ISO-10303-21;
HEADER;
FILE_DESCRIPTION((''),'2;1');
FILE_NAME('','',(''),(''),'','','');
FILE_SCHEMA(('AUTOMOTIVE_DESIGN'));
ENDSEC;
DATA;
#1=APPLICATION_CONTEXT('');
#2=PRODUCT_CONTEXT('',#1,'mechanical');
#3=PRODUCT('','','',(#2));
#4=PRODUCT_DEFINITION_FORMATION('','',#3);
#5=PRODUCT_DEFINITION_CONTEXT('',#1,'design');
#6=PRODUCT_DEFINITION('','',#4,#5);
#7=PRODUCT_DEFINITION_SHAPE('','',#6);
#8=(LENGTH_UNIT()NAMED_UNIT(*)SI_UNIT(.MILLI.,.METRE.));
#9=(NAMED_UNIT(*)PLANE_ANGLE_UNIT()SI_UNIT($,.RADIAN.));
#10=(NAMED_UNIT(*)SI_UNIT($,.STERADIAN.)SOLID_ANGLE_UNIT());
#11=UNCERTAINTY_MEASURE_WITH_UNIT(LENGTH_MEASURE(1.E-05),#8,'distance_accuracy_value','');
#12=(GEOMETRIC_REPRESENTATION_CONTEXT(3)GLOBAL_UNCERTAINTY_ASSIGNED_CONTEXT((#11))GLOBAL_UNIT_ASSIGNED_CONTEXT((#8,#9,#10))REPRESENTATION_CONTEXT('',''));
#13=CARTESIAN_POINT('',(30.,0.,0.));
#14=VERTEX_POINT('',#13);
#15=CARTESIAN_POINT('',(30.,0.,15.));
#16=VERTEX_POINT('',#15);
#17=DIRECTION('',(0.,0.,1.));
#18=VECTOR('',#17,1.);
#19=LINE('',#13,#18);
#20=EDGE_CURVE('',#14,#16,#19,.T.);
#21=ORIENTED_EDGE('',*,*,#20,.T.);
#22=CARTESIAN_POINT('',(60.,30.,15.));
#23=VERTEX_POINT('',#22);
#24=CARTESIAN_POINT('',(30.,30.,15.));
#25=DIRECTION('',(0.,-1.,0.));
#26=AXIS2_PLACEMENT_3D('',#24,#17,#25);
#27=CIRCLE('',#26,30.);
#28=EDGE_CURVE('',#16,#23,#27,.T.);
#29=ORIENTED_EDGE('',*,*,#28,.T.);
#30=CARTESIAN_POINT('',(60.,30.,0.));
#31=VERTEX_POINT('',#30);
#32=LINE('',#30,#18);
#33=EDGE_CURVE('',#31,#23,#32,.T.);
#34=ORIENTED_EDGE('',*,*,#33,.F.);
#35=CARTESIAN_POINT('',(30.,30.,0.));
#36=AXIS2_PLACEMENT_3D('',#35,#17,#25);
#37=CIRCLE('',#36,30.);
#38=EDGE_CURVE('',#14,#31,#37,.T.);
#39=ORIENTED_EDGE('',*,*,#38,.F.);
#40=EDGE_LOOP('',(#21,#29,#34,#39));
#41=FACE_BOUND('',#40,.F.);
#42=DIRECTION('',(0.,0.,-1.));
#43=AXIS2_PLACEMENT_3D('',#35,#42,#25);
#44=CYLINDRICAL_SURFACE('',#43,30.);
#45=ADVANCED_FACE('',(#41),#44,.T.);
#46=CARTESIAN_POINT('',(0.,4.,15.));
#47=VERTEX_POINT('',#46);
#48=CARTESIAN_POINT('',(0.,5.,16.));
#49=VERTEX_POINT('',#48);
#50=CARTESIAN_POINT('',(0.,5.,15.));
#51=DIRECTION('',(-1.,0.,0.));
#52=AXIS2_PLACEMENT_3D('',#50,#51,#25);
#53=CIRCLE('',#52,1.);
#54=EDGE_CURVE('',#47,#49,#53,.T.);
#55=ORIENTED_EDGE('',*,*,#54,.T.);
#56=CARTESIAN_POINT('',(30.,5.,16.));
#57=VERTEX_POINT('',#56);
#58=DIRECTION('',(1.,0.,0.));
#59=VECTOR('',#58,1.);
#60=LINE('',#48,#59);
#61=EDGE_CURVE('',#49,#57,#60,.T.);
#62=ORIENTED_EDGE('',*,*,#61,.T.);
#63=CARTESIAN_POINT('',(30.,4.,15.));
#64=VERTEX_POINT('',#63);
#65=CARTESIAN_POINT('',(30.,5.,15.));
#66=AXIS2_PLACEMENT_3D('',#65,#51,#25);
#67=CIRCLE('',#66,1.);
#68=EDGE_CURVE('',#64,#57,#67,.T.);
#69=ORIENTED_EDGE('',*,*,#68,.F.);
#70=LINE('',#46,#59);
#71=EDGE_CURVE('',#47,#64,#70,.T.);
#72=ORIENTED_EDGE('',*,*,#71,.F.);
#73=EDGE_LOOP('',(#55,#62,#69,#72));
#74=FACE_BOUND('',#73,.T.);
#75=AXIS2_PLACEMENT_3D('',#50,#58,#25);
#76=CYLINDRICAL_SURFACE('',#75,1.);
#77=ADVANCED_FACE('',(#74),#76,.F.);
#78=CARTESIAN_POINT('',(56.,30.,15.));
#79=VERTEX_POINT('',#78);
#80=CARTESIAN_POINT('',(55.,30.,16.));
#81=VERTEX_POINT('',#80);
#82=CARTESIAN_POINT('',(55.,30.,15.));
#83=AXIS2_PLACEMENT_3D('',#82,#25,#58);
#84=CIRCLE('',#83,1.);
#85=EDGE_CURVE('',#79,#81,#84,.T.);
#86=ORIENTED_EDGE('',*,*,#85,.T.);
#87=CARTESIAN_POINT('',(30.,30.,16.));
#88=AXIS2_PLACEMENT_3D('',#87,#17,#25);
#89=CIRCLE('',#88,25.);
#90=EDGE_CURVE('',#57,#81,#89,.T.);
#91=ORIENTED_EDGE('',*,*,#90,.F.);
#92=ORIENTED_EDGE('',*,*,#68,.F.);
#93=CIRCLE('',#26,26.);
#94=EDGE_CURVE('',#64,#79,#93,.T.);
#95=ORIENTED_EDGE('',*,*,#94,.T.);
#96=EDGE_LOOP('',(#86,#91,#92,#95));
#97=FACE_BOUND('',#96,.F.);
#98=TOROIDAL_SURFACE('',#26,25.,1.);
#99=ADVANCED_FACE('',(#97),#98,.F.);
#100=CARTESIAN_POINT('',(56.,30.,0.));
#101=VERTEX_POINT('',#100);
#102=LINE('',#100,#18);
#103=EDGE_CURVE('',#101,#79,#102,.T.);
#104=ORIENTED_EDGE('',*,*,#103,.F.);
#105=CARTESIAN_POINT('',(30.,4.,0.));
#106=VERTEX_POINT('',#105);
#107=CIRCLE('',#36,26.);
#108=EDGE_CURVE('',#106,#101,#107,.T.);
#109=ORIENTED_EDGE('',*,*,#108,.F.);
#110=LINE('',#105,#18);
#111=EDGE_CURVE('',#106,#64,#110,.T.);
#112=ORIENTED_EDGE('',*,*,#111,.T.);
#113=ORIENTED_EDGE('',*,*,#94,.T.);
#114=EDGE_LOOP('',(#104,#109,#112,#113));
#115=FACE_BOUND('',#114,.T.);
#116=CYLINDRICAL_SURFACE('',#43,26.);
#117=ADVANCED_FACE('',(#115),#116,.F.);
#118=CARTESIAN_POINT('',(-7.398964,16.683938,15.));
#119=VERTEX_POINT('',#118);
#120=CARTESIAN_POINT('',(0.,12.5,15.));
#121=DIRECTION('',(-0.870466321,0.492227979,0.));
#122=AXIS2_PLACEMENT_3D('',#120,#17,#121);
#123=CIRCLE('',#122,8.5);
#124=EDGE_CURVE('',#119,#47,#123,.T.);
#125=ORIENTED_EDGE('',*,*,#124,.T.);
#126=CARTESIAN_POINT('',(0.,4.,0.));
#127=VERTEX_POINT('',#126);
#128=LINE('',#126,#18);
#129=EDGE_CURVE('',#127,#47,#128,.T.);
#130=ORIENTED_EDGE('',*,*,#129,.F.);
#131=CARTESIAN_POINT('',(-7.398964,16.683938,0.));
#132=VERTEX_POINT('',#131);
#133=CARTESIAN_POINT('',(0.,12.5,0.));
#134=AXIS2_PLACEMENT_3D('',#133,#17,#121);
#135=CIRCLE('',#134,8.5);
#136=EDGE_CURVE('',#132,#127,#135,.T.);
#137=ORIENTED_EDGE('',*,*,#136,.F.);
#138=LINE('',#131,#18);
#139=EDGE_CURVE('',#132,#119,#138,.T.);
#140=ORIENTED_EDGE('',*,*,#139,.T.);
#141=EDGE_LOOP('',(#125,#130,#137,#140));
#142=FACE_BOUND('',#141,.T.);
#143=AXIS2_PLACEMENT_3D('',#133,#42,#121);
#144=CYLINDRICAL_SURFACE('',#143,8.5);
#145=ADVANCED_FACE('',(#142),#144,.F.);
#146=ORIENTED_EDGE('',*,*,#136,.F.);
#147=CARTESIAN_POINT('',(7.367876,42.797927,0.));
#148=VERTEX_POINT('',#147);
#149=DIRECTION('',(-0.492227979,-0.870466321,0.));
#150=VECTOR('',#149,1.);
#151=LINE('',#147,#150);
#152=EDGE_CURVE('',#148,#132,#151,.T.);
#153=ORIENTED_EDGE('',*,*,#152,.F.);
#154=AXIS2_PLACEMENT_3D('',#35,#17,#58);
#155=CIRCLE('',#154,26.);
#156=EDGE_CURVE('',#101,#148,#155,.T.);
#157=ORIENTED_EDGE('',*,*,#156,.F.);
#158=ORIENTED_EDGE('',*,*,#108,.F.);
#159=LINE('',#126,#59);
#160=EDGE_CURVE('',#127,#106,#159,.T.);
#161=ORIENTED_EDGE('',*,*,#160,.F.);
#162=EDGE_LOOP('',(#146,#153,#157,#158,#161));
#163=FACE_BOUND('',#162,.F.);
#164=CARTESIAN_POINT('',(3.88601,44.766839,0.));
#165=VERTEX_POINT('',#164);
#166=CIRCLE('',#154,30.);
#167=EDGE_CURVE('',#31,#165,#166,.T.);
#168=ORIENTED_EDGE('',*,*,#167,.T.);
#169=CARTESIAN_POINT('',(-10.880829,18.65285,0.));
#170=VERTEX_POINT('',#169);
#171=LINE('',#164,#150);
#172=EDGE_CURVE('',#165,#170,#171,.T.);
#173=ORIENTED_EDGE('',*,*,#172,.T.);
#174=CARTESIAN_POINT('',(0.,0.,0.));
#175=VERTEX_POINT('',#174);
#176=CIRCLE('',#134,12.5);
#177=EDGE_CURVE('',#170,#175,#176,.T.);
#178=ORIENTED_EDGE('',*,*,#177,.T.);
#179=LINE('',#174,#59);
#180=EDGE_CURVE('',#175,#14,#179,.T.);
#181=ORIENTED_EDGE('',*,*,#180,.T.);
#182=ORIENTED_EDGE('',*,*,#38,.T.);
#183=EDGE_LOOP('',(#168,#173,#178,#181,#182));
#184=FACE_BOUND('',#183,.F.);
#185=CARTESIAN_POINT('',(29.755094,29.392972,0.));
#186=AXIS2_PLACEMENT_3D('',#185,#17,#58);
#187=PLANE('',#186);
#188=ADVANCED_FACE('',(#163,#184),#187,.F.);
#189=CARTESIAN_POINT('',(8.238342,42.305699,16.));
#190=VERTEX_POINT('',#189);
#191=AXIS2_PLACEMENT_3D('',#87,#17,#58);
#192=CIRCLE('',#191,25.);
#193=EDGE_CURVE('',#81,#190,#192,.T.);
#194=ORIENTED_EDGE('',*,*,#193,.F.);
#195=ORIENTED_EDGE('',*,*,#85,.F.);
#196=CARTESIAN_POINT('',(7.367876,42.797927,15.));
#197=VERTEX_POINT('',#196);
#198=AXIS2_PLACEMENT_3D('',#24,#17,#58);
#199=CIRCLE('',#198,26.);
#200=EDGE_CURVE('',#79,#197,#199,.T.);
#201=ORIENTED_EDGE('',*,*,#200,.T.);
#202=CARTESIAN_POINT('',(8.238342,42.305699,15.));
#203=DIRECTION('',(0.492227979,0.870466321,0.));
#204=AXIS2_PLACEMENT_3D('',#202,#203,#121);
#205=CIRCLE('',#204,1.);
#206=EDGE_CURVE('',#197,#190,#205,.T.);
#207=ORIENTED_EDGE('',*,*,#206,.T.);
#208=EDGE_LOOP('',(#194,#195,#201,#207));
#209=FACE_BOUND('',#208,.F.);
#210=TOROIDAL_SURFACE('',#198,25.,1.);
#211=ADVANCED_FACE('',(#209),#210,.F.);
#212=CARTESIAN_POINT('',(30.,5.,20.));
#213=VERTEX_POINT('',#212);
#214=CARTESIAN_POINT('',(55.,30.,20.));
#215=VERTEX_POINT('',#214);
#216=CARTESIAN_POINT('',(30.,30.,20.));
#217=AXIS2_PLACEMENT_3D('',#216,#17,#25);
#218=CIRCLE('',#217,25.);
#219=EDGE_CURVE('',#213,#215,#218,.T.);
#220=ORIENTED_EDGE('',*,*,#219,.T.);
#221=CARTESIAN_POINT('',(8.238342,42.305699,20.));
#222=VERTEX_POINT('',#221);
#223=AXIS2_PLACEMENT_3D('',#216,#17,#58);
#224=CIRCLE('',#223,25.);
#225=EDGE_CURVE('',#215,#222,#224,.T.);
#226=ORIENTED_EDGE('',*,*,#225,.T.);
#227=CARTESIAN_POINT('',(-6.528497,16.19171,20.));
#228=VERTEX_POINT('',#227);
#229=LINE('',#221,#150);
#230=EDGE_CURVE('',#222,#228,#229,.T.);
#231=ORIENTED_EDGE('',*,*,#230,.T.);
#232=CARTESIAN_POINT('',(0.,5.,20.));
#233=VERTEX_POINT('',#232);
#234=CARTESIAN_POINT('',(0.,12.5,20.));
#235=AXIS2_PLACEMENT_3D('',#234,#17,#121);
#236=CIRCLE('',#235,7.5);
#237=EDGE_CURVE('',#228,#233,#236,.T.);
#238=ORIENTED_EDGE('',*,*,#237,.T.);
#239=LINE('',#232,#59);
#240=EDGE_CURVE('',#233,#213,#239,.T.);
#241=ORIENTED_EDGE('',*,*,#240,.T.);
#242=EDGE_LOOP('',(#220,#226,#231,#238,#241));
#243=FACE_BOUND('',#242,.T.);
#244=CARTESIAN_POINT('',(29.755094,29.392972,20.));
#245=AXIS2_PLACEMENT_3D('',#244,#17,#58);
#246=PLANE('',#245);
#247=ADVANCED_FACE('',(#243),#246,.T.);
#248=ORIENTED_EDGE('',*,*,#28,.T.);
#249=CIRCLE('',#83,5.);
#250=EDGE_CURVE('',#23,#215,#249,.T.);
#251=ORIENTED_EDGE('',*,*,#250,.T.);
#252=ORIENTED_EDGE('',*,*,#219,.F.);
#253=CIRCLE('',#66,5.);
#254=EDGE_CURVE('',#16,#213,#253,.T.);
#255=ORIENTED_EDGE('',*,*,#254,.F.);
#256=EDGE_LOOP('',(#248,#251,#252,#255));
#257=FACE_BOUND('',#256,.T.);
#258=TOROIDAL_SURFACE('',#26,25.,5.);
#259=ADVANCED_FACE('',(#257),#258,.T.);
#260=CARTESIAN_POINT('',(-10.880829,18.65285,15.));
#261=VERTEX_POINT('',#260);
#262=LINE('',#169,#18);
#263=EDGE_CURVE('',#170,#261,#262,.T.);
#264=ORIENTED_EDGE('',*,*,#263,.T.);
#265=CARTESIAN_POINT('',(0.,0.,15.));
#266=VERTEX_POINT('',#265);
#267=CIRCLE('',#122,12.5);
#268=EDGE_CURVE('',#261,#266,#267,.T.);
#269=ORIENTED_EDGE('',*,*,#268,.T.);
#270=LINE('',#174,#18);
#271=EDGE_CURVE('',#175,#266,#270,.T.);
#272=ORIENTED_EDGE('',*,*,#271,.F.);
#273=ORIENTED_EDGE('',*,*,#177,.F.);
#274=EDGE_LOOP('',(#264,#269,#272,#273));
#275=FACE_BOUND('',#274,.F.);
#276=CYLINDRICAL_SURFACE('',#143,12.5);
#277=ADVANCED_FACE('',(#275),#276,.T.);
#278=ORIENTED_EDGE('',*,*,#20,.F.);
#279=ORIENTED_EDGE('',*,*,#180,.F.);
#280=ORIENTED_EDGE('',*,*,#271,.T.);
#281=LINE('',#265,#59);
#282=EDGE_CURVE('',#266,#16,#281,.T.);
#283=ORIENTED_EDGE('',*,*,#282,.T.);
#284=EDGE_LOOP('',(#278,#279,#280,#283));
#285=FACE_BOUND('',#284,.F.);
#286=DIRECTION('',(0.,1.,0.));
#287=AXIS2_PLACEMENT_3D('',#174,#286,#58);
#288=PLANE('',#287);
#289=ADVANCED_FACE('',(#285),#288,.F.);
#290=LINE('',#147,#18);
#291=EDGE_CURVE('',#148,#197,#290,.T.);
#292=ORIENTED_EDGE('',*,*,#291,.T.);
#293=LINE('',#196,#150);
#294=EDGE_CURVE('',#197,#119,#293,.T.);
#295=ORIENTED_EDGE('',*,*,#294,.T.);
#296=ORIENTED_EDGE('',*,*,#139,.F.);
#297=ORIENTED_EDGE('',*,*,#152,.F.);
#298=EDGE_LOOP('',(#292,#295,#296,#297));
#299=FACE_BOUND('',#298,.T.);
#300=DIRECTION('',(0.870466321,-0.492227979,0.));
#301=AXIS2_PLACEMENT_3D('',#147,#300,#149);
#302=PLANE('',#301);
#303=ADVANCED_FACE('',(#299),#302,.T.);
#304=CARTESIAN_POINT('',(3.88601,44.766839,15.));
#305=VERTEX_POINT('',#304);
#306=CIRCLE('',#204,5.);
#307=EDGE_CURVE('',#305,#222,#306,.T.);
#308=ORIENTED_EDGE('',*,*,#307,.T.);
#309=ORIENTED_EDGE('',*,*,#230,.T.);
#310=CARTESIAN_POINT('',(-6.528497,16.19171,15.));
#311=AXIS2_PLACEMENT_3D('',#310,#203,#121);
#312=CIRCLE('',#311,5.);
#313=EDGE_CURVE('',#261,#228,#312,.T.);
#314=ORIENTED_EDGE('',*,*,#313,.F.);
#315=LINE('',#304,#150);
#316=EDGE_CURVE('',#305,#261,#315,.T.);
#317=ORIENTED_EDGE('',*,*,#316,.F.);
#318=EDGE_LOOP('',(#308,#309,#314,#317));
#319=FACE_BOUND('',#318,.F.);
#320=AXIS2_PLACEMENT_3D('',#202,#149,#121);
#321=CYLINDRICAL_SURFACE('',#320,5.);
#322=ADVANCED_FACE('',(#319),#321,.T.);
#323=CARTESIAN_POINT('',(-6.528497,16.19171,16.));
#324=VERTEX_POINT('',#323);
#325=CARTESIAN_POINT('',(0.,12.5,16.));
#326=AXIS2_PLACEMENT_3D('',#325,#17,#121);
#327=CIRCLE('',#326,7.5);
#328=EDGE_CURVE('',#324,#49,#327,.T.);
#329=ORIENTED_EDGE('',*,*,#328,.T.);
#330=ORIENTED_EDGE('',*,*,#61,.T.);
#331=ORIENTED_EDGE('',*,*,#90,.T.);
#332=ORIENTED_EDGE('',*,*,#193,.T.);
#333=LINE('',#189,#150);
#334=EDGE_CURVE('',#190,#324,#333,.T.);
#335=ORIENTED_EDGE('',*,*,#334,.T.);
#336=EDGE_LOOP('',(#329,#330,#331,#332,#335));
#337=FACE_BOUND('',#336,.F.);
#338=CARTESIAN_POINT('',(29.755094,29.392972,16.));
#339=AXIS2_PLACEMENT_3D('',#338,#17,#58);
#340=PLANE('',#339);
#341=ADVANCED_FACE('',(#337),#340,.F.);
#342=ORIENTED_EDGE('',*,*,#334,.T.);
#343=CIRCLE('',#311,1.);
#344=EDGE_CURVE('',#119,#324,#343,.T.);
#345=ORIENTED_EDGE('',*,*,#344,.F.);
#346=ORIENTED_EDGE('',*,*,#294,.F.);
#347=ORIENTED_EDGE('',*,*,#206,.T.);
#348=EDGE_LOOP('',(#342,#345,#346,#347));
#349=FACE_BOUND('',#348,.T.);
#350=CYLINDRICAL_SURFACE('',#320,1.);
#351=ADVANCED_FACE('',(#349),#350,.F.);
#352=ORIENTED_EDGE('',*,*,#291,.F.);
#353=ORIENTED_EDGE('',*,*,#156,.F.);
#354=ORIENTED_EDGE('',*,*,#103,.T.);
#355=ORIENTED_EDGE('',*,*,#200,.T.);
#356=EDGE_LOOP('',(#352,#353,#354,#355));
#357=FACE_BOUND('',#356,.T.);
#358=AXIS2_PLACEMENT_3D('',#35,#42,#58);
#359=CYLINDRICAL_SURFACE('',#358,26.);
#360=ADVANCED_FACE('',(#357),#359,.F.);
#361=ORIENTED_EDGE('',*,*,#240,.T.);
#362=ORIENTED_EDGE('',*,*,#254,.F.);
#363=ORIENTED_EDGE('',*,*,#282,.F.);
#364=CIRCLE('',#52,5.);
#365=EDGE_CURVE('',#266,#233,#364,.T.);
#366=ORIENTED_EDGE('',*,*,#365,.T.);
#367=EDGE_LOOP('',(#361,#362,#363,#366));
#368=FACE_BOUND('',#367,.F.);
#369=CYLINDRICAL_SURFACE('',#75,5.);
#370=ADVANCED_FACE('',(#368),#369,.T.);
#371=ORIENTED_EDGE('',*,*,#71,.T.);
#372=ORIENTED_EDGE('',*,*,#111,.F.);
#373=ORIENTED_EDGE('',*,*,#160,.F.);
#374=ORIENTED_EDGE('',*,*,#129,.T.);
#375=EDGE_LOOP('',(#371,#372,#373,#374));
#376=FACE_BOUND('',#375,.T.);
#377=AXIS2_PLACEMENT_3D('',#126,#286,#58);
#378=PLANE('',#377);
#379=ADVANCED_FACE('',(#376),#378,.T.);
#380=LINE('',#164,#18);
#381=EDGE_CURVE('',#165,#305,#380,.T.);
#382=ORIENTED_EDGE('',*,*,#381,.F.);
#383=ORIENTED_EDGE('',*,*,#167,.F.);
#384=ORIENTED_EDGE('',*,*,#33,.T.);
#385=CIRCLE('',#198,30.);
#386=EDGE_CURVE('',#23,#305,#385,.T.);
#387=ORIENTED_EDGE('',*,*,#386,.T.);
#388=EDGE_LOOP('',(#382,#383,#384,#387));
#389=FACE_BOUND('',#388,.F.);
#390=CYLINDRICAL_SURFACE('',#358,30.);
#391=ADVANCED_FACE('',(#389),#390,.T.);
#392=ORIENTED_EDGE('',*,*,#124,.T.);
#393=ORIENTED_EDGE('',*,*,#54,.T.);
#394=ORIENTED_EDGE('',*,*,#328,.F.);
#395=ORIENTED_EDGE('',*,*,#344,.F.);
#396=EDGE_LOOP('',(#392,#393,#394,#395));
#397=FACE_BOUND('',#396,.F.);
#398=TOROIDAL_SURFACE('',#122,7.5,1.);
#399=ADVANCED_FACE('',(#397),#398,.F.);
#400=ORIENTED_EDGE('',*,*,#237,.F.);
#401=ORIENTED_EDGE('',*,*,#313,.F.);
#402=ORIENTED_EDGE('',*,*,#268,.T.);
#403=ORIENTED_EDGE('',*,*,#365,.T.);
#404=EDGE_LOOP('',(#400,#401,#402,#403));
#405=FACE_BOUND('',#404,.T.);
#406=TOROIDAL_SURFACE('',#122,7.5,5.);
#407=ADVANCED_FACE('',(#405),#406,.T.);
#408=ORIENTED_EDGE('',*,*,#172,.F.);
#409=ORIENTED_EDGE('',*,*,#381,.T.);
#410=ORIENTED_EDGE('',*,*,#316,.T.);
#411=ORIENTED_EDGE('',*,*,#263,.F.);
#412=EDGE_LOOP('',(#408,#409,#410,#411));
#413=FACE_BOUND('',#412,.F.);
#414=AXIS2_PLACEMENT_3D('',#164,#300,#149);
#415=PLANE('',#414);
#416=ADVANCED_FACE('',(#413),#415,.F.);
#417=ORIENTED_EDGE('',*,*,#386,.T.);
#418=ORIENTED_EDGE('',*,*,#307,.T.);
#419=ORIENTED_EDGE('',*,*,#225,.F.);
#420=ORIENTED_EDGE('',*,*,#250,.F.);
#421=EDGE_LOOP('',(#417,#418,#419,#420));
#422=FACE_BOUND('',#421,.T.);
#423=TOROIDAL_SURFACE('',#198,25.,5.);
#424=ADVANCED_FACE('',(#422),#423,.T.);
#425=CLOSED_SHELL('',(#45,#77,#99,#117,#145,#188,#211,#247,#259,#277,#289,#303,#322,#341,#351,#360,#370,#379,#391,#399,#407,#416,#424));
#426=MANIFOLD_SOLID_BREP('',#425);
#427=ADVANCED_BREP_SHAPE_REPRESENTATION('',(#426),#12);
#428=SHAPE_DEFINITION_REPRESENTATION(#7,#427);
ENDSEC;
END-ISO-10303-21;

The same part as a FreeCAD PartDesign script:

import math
import FreeCAD as App
import Part
import Sketcher
Q = App.Units.Quantity


def edges_at(feature, points):
    """Names of the edges that pass closest to the given points."""
    edges = feature.Shape.Edges
    near = lambda p: min(range(len(edges)), key=lambda i: edges[i].distToShape(Part.Vertex(*p))[0])
    return sorted({f"Edge{near(p) + 1}" for p in points})


def faces_at(feature, points):
    """Names of the faces that lie closest to the given points."""
    faces = feature.Shape.Faces
    near = lambda p: min(range(len(faces)), key=lambda i: faces[i].distToShape(Part.Vertex(*p))[0])
    return sorted({f"Face{near(p) + 1}" for p in points})

doc = App.newDocument("Part")
body = doc.addObject("PartDesign::Body", "Body")

# Sketch on XY plane
sketch1 = body.newObject("Sketcher::SketchObject", "Sketch")
sketch1.AttachmentSupport = (doc.getObject("XY_Plane"), [""])
sketch1.MapMode = "FlatFace"
sketch1.addGeometry(Part.ArcOfCircle(Part.Circle(App.Vector(30, 30, 0), App.Vector(0, 0, 1), 30), math.radians(-90), math.radians(0)), False)
sketch1.addGeometry(Part.ArcOfCircle(Part.Circle(App.Vector(30, 30, 0), App.Vector(0, 0, 1), 30), math.radians(0), math.radians(151)), False)
sketch1.addGeometry(Part.LineSegment(App.Vector(4, 45, 0), App.Vector(-11, 19, 0)), False)
sketch1.addGeometry(Part.ArcOfCircle(Part.Circle(App.Vector(0, 12, 0), App.Vector(0, 0, 1), 12), math.radians(151), math.radians(270)), False)
sketch1.addGeometry(Part.LineSegment(App.Vector(0, 0, 0), App.Vector(30, 0, 0)), False)
sketch1.addConstraint(Sketcher.Constraint("Tangent", 0, 2, 1, 1))
sketch1.addConstraint(Sketcher.Constraint("Tangent", 1, 2, 2, 1))
sketch1.addConstraint(Sketcher.Constraint("Tangent", 2, 2, 3, 1))
sketch1.addConstraint(Sketcher.Constraint("Tangent", 3, 2, 4, 1))
sketch1.addConstraint(Sketcher.Constraint("Tangent", 4, 2, 0, 1))
sketch1.addConstraint(Sketcher.Constraint("Horizontal", 4))
sketch1.addConstraint(Sketcher.Constraint("Coincident", 3, 2, -1, 1))
sketch1.addConstraint(Sketcher.Constraint("Equal", 0, 1))
sketch1.addConstraint(Sketcher.Constraint("Horizontal", 1, 3, 0, 2))
sketch1.addConstraint(Sketcher.Constraint("Radius", 0, Q("30 mm")))
sketch1.addConstraint(Sketcher.Constraint("Radius", 3, Q("12.5 mm")))
sketch1.addConstraint(Sketcher.Constraint("DistanceX", 4, 1, 4, 2, Q("30 mm")))
pad1 = body.newObject("PartDesign::Pad", "Pad")
pad1.Profile = sketch1
pad1.Length = 20
doc.recompute()

fillet = body.newObject("PartDesign::Fillet", "Fillet")
fillet.Base = (pad1, edges_at(pad1, [
    (37.635, 59.012, 20),
    (-3.497, 31.71, 20),
    (-10.797, 6.202, 20),
    (15, 0, 20),
]))
fillet.Radius = 5
doc.recompute()

thickness = body.newObject("PartDesign::Thickness", "Thickness")
thickness.Base = (fillet, faces_at(fillet, [(23.75, 30, 0)]))
thickness.Value = 4
thickness.Reversed = True
thickness.Join = "Arc"

doc.recompute()
